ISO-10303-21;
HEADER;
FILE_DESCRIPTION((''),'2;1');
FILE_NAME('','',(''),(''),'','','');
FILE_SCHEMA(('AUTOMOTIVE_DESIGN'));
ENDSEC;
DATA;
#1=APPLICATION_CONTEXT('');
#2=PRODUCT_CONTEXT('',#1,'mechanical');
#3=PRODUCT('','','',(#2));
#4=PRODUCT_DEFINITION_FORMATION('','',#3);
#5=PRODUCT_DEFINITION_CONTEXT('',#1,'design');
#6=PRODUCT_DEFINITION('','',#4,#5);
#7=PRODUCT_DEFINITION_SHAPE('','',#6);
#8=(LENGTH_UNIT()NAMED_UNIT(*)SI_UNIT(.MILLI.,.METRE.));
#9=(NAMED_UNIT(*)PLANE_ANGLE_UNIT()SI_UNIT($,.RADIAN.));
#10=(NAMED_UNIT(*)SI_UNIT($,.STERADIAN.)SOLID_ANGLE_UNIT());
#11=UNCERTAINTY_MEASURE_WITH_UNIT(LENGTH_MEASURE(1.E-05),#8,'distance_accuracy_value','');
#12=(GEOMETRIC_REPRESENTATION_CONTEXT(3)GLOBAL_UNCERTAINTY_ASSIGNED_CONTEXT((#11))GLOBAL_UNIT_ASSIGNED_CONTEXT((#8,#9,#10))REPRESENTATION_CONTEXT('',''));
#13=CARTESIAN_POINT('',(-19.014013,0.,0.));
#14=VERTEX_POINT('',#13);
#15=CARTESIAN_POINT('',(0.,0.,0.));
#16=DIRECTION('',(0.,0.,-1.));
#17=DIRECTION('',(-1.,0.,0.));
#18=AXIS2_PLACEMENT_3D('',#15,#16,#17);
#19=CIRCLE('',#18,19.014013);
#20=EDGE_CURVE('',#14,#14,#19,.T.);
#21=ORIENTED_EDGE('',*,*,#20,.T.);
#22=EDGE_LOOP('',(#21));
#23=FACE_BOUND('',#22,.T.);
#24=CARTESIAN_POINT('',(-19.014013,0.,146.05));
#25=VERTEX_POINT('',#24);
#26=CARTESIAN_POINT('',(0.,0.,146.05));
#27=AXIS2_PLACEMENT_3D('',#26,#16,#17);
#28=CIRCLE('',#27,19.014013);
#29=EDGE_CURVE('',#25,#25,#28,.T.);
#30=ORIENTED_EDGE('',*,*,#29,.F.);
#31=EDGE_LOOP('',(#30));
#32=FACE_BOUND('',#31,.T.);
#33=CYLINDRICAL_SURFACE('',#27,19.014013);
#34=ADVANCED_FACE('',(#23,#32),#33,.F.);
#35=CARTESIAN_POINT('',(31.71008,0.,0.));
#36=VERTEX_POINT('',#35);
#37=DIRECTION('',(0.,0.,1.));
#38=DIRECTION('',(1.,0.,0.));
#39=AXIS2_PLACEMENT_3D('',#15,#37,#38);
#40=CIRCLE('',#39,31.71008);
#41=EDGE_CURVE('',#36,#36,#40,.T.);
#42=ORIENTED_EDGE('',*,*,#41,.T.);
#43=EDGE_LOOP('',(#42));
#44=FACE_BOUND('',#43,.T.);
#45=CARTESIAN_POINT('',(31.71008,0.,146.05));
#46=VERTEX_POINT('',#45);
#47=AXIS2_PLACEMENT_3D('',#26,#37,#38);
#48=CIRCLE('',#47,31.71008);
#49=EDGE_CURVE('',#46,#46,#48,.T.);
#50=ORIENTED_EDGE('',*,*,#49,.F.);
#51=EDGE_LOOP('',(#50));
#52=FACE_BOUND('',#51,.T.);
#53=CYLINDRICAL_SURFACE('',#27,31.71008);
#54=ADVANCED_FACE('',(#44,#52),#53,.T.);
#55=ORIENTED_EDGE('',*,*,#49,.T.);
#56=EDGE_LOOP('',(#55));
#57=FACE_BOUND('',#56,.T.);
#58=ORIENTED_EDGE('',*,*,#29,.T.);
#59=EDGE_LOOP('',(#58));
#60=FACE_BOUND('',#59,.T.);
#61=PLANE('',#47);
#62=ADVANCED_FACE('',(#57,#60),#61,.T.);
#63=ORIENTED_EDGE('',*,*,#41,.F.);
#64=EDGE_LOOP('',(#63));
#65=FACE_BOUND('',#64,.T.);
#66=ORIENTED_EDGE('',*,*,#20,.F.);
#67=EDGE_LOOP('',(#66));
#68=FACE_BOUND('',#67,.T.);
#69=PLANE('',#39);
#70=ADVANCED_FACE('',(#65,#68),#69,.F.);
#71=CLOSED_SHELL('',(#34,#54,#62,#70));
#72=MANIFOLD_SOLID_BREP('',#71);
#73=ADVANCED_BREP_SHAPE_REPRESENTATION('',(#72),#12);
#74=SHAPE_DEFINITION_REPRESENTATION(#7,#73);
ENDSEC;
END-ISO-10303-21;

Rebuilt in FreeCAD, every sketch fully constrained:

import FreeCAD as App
import Part
import Sketcher
Q = App.Units.Quantity

doc = App.newDocument("Part")
params = doc.addObject("Spreadsheet::Sheet", "Params")
for row, (alias, value) in enumerate([
    ("pad1_length", "5.75 in"),
    ("pocket1_length", "5.75 in"),
], start=1):
    params.set(f"A{row}", alias)
    params.set(f"B{row}", "=" + value)
    params.setAlias(f"B{row}", alias)

body = doc.addObject("PartDesign::Body", "Body")

# Sketch on XY plane
sketch1 = doc.addObject("Sketcher::SketchObject", "Sketch")
body.addObject(sketch1)
sketch1.AttachmentSupport = (doc.XY_Plane, [""])
sketch1.MapMode = "FlatFace"
sketch1.addGeometry(Part.Circle(App.Vector(0, 0, 0), App.Vector(0, 0, 1), 32), False)
sketch1.addConstraint([
    Sketcher.Constraint("Coincident", 0, 3, -1, 1),
    Sketcher.Constraint("Diameter", 0, Q("63.42016 mm")),
])
pad1 = doc.addObject("PartDesign::Pad", "Pad")
body.addObject(pad1)
pad1.Profile = sketch1
pad1.setExpression("Length", "Params.pad1_length")

# Sketch on XY plane
sketch2 = doc.addObject("Sketcher::SketchObject", "Sketch001")
body.addObject(sketch2)
sketch2.AttachmentSupport = (doc.XY_Plane, [""])
sketch2.MapMode = "FlatFace"
sketch2.addGeometry(Part.Circle(App.Vector(0, 0, 0), App.Vector(0, 0, 1), 19), False)
sketch2.addConstraint([
    Sketcher.Constraint("Coincident", 0, 3, -1, 1),
    Sketcher.Constraint("Diameter", 0, Q("38.028026 mm")),
])
pocket1 = doc.addObject("PartDesign::Pocket", "Pocket")
body.addObject(pocket1)
pocket1.Profile = sketch2
pocket1.setExpression("Length", "Params.pocket1_length")
pocket1.Reversed = True

doc.recompute()
